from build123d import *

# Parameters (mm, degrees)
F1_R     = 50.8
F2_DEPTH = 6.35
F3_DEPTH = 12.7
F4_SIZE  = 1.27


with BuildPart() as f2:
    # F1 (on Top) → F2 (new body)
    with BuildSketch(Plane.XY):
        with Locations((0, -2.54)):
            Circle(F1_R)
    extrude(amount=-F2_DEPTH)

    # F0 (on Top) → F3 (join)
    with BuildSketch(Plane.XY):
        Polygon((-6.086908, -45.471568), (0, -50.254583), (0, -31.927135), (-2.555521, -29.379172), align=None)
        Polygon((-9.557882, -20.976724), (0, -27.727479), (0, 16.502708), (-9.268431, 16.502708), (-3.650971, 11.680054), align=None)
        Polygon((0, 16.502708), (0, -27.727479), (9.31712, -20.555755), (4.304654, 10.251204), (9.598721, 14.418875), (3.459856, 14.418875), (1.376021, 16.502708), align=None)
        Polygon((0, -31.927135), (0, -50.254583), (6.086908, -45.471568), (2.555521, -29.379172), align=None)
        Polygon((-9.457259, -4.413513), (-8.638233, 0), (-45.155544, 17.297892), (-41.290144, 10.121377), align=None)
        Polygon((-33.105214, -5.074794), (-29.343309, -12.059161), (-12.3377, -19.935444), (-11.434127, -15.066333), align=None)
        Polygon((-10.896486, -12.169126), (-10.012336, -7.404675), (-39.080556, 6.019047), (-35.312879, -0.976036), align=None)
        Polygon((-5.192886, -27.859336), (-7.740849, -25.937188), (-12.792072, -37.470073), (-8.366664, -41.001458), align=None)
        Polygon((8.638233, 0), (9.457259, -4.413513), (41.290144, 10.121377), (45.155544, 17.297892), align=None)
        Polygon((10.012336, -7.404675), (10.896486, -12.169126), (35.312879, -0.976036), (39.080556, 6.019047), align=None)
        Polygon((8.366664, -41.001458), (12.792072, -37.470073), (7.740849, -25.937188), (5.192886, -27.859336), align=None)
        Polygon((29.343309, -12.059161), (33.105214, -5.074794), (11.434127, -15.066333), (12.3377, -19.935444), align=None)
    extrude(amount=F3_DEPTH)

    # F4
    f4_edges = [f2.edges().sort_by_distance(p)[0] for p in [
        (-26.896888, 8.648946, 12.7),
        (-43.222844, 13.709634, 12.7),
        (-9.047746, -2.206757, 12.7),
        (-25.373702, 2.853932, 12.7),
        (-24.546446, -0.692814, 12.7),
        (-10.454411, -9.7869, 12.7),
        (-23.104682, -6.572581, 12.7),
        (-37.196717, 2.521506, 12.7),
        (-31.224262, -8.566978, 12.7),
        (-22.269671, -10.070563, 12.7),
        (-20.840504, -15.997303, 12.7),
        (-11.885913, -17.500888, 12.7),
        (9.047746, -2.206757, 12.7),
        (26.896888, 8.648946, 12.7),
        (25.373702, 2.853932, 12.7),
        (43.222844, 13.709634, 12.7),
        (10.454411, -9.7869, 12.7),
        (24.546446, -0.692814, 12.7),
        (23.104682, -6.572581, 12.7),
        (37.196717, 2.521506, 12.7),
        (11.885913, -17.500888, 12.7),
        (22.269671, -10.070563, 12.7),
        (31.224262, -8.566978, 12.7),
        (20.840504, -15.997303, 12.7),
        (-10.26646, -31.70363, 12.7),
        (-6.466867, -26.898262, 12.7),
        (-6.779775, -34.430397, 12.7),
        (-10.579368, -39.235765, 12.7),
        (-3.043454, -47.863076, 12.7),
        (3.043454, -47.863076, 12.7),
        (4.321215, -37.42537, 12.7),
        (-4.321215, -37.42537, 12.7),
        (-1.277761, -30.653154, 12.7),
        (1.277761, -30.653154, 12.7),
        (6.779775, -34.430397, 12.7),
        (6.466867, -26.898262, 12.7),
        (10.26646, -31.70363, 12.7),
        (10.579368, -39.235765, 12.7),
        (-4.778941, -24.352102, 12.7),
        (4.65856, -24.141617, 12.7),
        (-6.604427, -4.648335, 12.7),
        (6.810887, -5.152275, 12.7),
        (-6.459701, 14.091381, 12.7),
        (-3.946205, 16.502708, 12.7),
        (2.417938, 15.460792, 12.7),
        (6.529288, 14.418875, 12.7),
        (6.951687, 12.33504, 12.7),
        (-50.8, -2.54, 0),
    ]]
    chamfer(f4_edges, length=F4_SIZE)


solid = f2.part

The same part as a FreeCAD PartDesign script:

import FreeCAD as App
import Part
import Sketcher
Q = App.Units.Quantity


def edges_at(feature, points):
    """Names of the edges that pass closest to the given points."""
    edges = feature.Shape.Edges
    near = lambda p: min(range(len(edges)), key=lambda i: edges[i].distToShape(Part.Vertex(*p))[0])
    return sorted({f"Edge{near(p) + 1}" for p in points})


def add_polygon(sketch, points):
    """Adds a closed chain of lines whose ends are joined by coincident constraints."""
    first, n = sketch.GeometryCount, len(points)
    for a, b in zip(points, points[1:] + points[:1]):
        sketch.addGeometry(Part.LineSegment(App.Vector(*a, 0), App.Vector(*b, 0)), False)
    for i in range(n):
        sketch.addConstraint(Sketcher.Constraint("Coincident", first + i, 2, first + (i + 1) % n, 1))

doc = App.newDocument("Part")
body = doc.addObject("PartDesign::Body", "Body")

sketch1 = doc.addObject("Sketcher::SketchObject", "Sketch")
body.addObject(sketch1)
sketch1.AttachmentSupport = (doc.XY_Plane, [""])
sketch1.MapMode = "FlatFace"
sketch1.addGeometry(Part.Circle(App.Vector(0, -3, 0), App.Vector(0, 0, 1), 51), False)
sketch1.addConstraint(Sketcher.Constraint("PointOnObject", 0, 3, -2))
sketch1.addConstraint(Sketcher.Constraint("Diameter", 0, Q("4 in")))
sketch1.addConstraint(Sketcher.Constraint("DistanceY", 0, 3, -1, 1, Q("0.1 in")))
pad1 = doc.addObject("PartDesign::Pad", "Pad")
body.addObject(pad1)
pad1.Profile = sketch1
pad1.Length = Q("0.25 in")
pad1.Reversed = True

sketch2 = doc.addObject("Sketcher::SketchObject", "Sketch001")
body.addObject(sketch2)
sketch2.AttachmentSupport = (doc.XY_Plane, [""])
sketch2.MapMode = "FlatFace"
add_polygon(sketch2, [(-6.1, -45.5), (0, -50.3), (6.1, -45.5), (2.6, -29.4), (0, -31.9), (-2.6, -29.4)])
add_polygon(sketch2, [(-9.6, -21), (0, -27.7), (9.3, -20.6), (4.3, 10.3), (9.6, 14.4), (3.5, 14.4), (1.4, 16.5), (-9.3, 16.5), (-3.7, 11.7)])
add_polygon(sketch2, [(-9.5, -4.4), (-8.6, 0), (-45.2, 17.3), (-41.3, 10.1)])
add_polygon(sketch2, [(-33.1, -5.1), (-29.3, -12.1), (-12.3, -19.9), (-11.4, -15.1)])
add_polygon(sketch2, [(-10.9, -12.2), (-10, -7.4), (-39.1, 6), (-35.3, -1)])
add_polygon(sketch2, [(-5.2, -27.9), (-7.7, -25.9), (-12.8, -37.5), (-8.4, -41)])
add_polygon(sketch2, [(8.6, 0), (9.5, -4.4), (41.3, 10.1), (45.2, 17.3)])
add_polygon(sketch2, [(10, -7.4), (10.9, -12.2), (35.3, -1), (39.1, 6)])
add_polygon(sketch2, [(8.4, -41), (12.8, -37.5), (7.7, -25.9), (5.2, -27.9)])
add_polygon(sketch2, [(29.3, -12.1), (33.1, -5.1), (11.4, -15.1), (12.3, -19.9)])
sketch2.addConstraint(Sketcher.Constraint("Horizontal", 10))
sketch2.addConstraint(Sketcher.Constraint("Horizontal", 12))
sketch2.addConstraint(Sketcher.Constraint("Symmetric", 15, 2, 34, 2, -1, 1))
sketch2.addConstraint(Sketcher.Constraint("Symmetric", 2, 2, 4, 2, -2))
sketch2.addConstraint(Sketcher.Constraint("Symmetric", 1, 2, 5, 2, -2))
sketch2.addConstraint(Sketcher.Constraint("Symmetric", 18, 2, 31, 2, -2))
sketch2.addConstraint(Sketcher.Constraint("Symmetric", 17, 2, 32, 2, -2))
sketch2.addConstraint(Sketcher.Constraint("Symmetric", 16, 2, 33, 2, -2))
sketch2.addConstraint(Sketcher.Constraint("Symmetric", 26, 2, 35, 2, -2))
sketch2.addConstraint(Sketcher.Constraint("Symmetric", 25, 2, 36, 2, -2))
sketch2.addConstraint(Sketcher.Constraint("Symmetric", 24, 2, 37, 2, -2))
sketch2.addConstraint(Sketcher.Constraint("Symmetric", 23, 2, 38, 2, -2))
sketch2.addConstraint(Sketcher.Constraint("Symmetric", 28, 2, 39, 2, -2))
sketch2.addConstraint(Sketcher.Constraint("Symmetric", 27, 2, 40, 2, -2))
sketch2.addConstraint(Sketcher.Constraint("Symmetric", 30, 2, 41, 2, -2))
sketch2.addConstraint(Sketcher.Constraint("Symmetric", 29, 2, 42, 2, -2))
sketch2.addConstraint(Sketcher.Constraint("Symmetric", 22, 2, 43, 2, -2))
sketch2.addConstraint(Sketcher.Constraint("Symmetric", 21, 2, 44, 2, -2))
sketch2.addConstraint(Sketcher.Constraint("Symmetric", 20, 2, 45, 2, -2))
sketch2.addConstraint(Sketcher.Constraint("Symmetric", 19, 2, 46, 2, -2))
sketch2.addConstraint(Sketcher.Constraint("PointOnObject", 0, 2, -2))
sketch2.addConstraint(Sketcher.Constraint("PointOnObject", 3, 2, -2))
sketch2.addConstraint(Sketcher.Constraint("PointOnObject", 6, 2, -2))
sketch2.addConstraint(Sketcher.Constraint("PointOnObject", 15, 2, -1))
sketch2.addConstraint(Sketcher.Constraint("Parallel", 17, 19))
sketch2.addConstraint(Sketcher.Constraint("Parallel", 15, 21))
sketch2.addConstraint(Sketcher.Constraint("Parallel", 21, 23))
sketch2.addConstraint(Sketcher.Constraint("Parallel", 19, 25))
sketch2.addConstraint(Sketcher.Constraint("Distance", 9, Q("6.737702 mm")))
sketch2.addConstraint(Sketcher.Constraint("Distance", 17, Q("8.1513 mm")))
sketch2.addConstraint(Sketcher.Constraint("DistanceX", 12, 2, 12, 1, Q("10.644452 mm")))
sketch2.addConstraint(Sketcher.Constraint("DistanceX", 20, 2, -1, 1, Q("12.3377 mm")))
sketch2.addConstraint(Sketcher.Constraint("DistanceX", 2, 2, 7, 2, Q("6.761599 mm")))
sketch2.addConstraint(Sketcher.Constraint("DistanceX", 7, 2, 9, 2, Q("0.281601 mm")))
sketch2.addConstraint(Sketcher.Constraint("DistanceX", 10, 2, 8, 2, Q("0.844798 mm")))
sketch2.addConstraint(Sketcher.Constraint("DistanceX", 11, 2, 9, 2, Q("8.2227 mm")))
sketch2.addConstraint(Sketcher.Constraint("DistanceX", 14, 2, 7, 2, Q("18.875002 mm")))
sketch2.addConstraint(Sketcher.Constraint("DistanceX", 12, 2, 15, 2, Q("0.630198 mm")))
sketch2.addConstraint(Sketcher.Constraint("DistanceX", 16, 2, 10, 2, Q("48.6154 mm")))
sketch2.addConstraint(Sketcher.Constraint("DistanceX", 16, 2, 17, 2, Q("3.8654 mm")))
sketch2.addConstraint(Sketcher.Constraint("DistanceY", 28, 2, 4, 2, Q("8.090901 mm")))
sketch2.addConstraint(Sketcher.Constraint("DistanceY", 3, 2, 30, 2, Q("4.067799 mm")))
sketch2.addConstraint(Sketcher.Constraint("Distance", 2, Q("16.475312 mm")))
sketch2.addConstraint(Sketcher.Constraint("Distance", 6, Q("11.70153 mm")))
sketch2.addConstraint(Sketcher.Constraint("Distance", 7, Q("11.757651 mm")))
sketch2.addConstraint(Sketcher.Constraint("Distance", 19, Q("7.933052 mm")))
sketch2.addConstraint(Sketcher.Constraint("Distance", 20, Q("18.74104 mm")))
sketch2.addConstraint(Sketcher.Constraint("Distance", 21, Q("4.952241 mm")))
sketch2.addConstraint(Sketcher.Constraint("Distance", 27, Q("3.191672 mm")))
sketch2.addConstraint(Sketcher.Constraint("Distance", 30, Q("13.51992 mm")))
sketch2.addConstraint(Sketcher.Constraint("DistanceX", 10, 2, 10, 1, Q("6.138865 mm")))
sketch2.addConstraint(Sketcher.Constraint("DistanceX", -1, 1, 1, 2, Q("6.086908 mm")))
sketch2.addConstraint(Sketcher.Constraint("DistanceX", -1, 1, 2, 2, Q("2.555521 mm")))
sketch2.addConstraint(Sketcher.Constraint("DistanceY", 6, 2, -1, 1, Q("27.727479 mm")))
sketch2.addConstraint(Sketcher.Constraint("DistanceX", 13, 2, -1, 1, Q("3.650971 mm")))
sketch2.addConstraint(Sketcher.Constraint("DistanceX", 18, 2, -1, 1, Q("9.457259 mm")))
sketch2.addConstraint(Sketcher.Constraint("DistanceX", 19, 2, -1, 1, Q("29.343309 mm")))
sketch2.addConstraint(Sketcher.Constraint("DistanceY", 19, 2, -1, 1, Q("12.059161 mm")))
sketch2.addConstraint(Sketcher.Constraint("DistanceX", 25, 2, -1, 1, Q("35.312879 mm")))
sketch2.addConstraint(Sketcher.Constraint("DistanceX", 27, 2, -1, 1, Q("7.740849 mm")))
sketch2.addConstraint(Sketcher.Constraint("DistanceX", 28, 2, -1, 1, Q("12.792072 mm")))
sketch2.addConstraint(Sketcher.Constraint("DistanceY", 0, 2, 2, 2, Q("20.875411 mm")))
sketch2.addConstraint(Sketcher.Constraint("DistanceY", 1, 2, 6, 2, Q("17.744089 mm")))
sketch2.addConstraint(Sketcher.Constraint("DistanceY", 3, 2, 7, 2, Q("11.37138 mm")))
sketch2.addConstraint(Sketcher.Constraint("DistanceY", 7, 2, 8, 2, Q("30.806959 mm")))
sketch2.addConstraint(Sketcher.Constraint("DistanceY", 13, 2, 10, 2, Q("2.738821 mm")))
sketch2.addConstraint(Sketcher.Constraint("DistanceY", 13, 2, 16, 2, Q("5.617838 mm")))
sketch2.addConstraint(Sketcher.Constraint("DistanceY", 17, 2, 12, 2, Q("6.381331 mm")))
sketch2.addConstraint(Sketcher.Constraint("DistanceY", 14, 2, 18, 2, Q("16.563211 mm")))
sketch2.addConstraint(Sketcher.Constraint("DistanceX", 21, 2, 23, 2, Q("1.421791 mm")))
sketch2.addConstraint(Sketcher.Constraint("DistanceY", 20, 2, 23, 2, Q("12.530769 mm")))
sketch2.addConstraint(Sketcher.Constraint("DistanceY", 24, 2, 17, 2, Q("4.10233 mm")))
sketch2.addConstraint(Sketcher.Constraint("DistanceY", 25, 2, 16, 2, Q("18.273928 mm")))
sketch2.addConstraint(Sketcher.Constraint("DistanceX", 21, 2, 26, 2, Q("0.537641 mm")))
sketch2.addConstraint(Sketcher.Constraint("DistanceY", 6, 2, 27, 2, Q("1.790291 mm")))
sketch2.addConstraint(Sketcher.Constraint("DistanceY", 5, 2, 29, 2, Q("4.47011 mm")))
pad2 = doc.addObject("PartDesign::Pad", "Pad001")
body.addObject(pad2)
pad2.Profile = sketch2
pad2.Length = Q("0.5 in")
doc.recompute()

chamfer = doc.addObject("PartDesign::Chamfer", "Chamfer")
body.addObject(chamfer)
chamfer.Base = (pad2, edges_at(pad2, [
    (-26.897, 8.649, 12.7),
    (-43.223, 13.71, 12.7),
    (-9.048, -2.207, 12.7),
    (-25.374, 2.854, 12.7),
    (-24.546, -0.693, 12.7),
    (-10.454, -9.787, 12.7),
    (-23.105, -6.573, 12.7),
    (-37.197, 2.522, 12.7),
    (-31.224, -8.567, 12.7),
    (-22.27, -10.071, 12.7),
    (-20.841, -15.997, 12.7),
    (-11.886, -17.501, 12.7),
    (9.048, -2.207, 12.7),
    (26.897, 8.649, 12.7),
    (25.374, 2.854, 12.7),
    (43.223, 13.71, 12.7),
    (10.454, -9.787, 12.7),
    (24.546, -0.693, 12.7),
    (23.105, -6.573, 12.7),
    (37.197, 2.522, 12.7),
    (11.886, -17.501, 12.7),
    (22.27, -10.071, 12.7),
    (31.224, -8.567, 12.7),
    (20.841, -15.997, 12.7),
    (-10.266, -31.704, 12.7),
    (-6.467, -26.898, 12.7),
    (-6.78, -34.43, 12.7),
    (-10.579, -39.236, 12.7),
    (-3.043, -47.863, 12.7),
    (3.043, -47.863, 12.7),
    (4.321, -37.425, 12.7),
    (-4.321, -37.425, 12.7),
    (-1.278, -30.653, 12.7),
    (1.278, -30.653, 12.7),
    (6.78, -34.43, 12.7),
    (6.467, -26.898, 12.7),
    (10.266, -31.704, 12.7),
    (10.579, -39.236, 12.7),
    (-4.779, -24.352, 12.7),
    (4.659, -24.142, 12.7),
    (-6.604, -4.648, 12.7),
    (6.811, -5.152, 12.7),
    (-6.46, 14.091, 12.7),
    (-3.946, 16.503, 12.7),
    (2.418, 15.461, 12.7),
    (6.529, 14.419, 12.7),
    (6.952, 12.335, 12.7),
    (-50.8, -2.54, 0),
]))
chamfer.Size = Q("0.05 in")

doc.recompute()
